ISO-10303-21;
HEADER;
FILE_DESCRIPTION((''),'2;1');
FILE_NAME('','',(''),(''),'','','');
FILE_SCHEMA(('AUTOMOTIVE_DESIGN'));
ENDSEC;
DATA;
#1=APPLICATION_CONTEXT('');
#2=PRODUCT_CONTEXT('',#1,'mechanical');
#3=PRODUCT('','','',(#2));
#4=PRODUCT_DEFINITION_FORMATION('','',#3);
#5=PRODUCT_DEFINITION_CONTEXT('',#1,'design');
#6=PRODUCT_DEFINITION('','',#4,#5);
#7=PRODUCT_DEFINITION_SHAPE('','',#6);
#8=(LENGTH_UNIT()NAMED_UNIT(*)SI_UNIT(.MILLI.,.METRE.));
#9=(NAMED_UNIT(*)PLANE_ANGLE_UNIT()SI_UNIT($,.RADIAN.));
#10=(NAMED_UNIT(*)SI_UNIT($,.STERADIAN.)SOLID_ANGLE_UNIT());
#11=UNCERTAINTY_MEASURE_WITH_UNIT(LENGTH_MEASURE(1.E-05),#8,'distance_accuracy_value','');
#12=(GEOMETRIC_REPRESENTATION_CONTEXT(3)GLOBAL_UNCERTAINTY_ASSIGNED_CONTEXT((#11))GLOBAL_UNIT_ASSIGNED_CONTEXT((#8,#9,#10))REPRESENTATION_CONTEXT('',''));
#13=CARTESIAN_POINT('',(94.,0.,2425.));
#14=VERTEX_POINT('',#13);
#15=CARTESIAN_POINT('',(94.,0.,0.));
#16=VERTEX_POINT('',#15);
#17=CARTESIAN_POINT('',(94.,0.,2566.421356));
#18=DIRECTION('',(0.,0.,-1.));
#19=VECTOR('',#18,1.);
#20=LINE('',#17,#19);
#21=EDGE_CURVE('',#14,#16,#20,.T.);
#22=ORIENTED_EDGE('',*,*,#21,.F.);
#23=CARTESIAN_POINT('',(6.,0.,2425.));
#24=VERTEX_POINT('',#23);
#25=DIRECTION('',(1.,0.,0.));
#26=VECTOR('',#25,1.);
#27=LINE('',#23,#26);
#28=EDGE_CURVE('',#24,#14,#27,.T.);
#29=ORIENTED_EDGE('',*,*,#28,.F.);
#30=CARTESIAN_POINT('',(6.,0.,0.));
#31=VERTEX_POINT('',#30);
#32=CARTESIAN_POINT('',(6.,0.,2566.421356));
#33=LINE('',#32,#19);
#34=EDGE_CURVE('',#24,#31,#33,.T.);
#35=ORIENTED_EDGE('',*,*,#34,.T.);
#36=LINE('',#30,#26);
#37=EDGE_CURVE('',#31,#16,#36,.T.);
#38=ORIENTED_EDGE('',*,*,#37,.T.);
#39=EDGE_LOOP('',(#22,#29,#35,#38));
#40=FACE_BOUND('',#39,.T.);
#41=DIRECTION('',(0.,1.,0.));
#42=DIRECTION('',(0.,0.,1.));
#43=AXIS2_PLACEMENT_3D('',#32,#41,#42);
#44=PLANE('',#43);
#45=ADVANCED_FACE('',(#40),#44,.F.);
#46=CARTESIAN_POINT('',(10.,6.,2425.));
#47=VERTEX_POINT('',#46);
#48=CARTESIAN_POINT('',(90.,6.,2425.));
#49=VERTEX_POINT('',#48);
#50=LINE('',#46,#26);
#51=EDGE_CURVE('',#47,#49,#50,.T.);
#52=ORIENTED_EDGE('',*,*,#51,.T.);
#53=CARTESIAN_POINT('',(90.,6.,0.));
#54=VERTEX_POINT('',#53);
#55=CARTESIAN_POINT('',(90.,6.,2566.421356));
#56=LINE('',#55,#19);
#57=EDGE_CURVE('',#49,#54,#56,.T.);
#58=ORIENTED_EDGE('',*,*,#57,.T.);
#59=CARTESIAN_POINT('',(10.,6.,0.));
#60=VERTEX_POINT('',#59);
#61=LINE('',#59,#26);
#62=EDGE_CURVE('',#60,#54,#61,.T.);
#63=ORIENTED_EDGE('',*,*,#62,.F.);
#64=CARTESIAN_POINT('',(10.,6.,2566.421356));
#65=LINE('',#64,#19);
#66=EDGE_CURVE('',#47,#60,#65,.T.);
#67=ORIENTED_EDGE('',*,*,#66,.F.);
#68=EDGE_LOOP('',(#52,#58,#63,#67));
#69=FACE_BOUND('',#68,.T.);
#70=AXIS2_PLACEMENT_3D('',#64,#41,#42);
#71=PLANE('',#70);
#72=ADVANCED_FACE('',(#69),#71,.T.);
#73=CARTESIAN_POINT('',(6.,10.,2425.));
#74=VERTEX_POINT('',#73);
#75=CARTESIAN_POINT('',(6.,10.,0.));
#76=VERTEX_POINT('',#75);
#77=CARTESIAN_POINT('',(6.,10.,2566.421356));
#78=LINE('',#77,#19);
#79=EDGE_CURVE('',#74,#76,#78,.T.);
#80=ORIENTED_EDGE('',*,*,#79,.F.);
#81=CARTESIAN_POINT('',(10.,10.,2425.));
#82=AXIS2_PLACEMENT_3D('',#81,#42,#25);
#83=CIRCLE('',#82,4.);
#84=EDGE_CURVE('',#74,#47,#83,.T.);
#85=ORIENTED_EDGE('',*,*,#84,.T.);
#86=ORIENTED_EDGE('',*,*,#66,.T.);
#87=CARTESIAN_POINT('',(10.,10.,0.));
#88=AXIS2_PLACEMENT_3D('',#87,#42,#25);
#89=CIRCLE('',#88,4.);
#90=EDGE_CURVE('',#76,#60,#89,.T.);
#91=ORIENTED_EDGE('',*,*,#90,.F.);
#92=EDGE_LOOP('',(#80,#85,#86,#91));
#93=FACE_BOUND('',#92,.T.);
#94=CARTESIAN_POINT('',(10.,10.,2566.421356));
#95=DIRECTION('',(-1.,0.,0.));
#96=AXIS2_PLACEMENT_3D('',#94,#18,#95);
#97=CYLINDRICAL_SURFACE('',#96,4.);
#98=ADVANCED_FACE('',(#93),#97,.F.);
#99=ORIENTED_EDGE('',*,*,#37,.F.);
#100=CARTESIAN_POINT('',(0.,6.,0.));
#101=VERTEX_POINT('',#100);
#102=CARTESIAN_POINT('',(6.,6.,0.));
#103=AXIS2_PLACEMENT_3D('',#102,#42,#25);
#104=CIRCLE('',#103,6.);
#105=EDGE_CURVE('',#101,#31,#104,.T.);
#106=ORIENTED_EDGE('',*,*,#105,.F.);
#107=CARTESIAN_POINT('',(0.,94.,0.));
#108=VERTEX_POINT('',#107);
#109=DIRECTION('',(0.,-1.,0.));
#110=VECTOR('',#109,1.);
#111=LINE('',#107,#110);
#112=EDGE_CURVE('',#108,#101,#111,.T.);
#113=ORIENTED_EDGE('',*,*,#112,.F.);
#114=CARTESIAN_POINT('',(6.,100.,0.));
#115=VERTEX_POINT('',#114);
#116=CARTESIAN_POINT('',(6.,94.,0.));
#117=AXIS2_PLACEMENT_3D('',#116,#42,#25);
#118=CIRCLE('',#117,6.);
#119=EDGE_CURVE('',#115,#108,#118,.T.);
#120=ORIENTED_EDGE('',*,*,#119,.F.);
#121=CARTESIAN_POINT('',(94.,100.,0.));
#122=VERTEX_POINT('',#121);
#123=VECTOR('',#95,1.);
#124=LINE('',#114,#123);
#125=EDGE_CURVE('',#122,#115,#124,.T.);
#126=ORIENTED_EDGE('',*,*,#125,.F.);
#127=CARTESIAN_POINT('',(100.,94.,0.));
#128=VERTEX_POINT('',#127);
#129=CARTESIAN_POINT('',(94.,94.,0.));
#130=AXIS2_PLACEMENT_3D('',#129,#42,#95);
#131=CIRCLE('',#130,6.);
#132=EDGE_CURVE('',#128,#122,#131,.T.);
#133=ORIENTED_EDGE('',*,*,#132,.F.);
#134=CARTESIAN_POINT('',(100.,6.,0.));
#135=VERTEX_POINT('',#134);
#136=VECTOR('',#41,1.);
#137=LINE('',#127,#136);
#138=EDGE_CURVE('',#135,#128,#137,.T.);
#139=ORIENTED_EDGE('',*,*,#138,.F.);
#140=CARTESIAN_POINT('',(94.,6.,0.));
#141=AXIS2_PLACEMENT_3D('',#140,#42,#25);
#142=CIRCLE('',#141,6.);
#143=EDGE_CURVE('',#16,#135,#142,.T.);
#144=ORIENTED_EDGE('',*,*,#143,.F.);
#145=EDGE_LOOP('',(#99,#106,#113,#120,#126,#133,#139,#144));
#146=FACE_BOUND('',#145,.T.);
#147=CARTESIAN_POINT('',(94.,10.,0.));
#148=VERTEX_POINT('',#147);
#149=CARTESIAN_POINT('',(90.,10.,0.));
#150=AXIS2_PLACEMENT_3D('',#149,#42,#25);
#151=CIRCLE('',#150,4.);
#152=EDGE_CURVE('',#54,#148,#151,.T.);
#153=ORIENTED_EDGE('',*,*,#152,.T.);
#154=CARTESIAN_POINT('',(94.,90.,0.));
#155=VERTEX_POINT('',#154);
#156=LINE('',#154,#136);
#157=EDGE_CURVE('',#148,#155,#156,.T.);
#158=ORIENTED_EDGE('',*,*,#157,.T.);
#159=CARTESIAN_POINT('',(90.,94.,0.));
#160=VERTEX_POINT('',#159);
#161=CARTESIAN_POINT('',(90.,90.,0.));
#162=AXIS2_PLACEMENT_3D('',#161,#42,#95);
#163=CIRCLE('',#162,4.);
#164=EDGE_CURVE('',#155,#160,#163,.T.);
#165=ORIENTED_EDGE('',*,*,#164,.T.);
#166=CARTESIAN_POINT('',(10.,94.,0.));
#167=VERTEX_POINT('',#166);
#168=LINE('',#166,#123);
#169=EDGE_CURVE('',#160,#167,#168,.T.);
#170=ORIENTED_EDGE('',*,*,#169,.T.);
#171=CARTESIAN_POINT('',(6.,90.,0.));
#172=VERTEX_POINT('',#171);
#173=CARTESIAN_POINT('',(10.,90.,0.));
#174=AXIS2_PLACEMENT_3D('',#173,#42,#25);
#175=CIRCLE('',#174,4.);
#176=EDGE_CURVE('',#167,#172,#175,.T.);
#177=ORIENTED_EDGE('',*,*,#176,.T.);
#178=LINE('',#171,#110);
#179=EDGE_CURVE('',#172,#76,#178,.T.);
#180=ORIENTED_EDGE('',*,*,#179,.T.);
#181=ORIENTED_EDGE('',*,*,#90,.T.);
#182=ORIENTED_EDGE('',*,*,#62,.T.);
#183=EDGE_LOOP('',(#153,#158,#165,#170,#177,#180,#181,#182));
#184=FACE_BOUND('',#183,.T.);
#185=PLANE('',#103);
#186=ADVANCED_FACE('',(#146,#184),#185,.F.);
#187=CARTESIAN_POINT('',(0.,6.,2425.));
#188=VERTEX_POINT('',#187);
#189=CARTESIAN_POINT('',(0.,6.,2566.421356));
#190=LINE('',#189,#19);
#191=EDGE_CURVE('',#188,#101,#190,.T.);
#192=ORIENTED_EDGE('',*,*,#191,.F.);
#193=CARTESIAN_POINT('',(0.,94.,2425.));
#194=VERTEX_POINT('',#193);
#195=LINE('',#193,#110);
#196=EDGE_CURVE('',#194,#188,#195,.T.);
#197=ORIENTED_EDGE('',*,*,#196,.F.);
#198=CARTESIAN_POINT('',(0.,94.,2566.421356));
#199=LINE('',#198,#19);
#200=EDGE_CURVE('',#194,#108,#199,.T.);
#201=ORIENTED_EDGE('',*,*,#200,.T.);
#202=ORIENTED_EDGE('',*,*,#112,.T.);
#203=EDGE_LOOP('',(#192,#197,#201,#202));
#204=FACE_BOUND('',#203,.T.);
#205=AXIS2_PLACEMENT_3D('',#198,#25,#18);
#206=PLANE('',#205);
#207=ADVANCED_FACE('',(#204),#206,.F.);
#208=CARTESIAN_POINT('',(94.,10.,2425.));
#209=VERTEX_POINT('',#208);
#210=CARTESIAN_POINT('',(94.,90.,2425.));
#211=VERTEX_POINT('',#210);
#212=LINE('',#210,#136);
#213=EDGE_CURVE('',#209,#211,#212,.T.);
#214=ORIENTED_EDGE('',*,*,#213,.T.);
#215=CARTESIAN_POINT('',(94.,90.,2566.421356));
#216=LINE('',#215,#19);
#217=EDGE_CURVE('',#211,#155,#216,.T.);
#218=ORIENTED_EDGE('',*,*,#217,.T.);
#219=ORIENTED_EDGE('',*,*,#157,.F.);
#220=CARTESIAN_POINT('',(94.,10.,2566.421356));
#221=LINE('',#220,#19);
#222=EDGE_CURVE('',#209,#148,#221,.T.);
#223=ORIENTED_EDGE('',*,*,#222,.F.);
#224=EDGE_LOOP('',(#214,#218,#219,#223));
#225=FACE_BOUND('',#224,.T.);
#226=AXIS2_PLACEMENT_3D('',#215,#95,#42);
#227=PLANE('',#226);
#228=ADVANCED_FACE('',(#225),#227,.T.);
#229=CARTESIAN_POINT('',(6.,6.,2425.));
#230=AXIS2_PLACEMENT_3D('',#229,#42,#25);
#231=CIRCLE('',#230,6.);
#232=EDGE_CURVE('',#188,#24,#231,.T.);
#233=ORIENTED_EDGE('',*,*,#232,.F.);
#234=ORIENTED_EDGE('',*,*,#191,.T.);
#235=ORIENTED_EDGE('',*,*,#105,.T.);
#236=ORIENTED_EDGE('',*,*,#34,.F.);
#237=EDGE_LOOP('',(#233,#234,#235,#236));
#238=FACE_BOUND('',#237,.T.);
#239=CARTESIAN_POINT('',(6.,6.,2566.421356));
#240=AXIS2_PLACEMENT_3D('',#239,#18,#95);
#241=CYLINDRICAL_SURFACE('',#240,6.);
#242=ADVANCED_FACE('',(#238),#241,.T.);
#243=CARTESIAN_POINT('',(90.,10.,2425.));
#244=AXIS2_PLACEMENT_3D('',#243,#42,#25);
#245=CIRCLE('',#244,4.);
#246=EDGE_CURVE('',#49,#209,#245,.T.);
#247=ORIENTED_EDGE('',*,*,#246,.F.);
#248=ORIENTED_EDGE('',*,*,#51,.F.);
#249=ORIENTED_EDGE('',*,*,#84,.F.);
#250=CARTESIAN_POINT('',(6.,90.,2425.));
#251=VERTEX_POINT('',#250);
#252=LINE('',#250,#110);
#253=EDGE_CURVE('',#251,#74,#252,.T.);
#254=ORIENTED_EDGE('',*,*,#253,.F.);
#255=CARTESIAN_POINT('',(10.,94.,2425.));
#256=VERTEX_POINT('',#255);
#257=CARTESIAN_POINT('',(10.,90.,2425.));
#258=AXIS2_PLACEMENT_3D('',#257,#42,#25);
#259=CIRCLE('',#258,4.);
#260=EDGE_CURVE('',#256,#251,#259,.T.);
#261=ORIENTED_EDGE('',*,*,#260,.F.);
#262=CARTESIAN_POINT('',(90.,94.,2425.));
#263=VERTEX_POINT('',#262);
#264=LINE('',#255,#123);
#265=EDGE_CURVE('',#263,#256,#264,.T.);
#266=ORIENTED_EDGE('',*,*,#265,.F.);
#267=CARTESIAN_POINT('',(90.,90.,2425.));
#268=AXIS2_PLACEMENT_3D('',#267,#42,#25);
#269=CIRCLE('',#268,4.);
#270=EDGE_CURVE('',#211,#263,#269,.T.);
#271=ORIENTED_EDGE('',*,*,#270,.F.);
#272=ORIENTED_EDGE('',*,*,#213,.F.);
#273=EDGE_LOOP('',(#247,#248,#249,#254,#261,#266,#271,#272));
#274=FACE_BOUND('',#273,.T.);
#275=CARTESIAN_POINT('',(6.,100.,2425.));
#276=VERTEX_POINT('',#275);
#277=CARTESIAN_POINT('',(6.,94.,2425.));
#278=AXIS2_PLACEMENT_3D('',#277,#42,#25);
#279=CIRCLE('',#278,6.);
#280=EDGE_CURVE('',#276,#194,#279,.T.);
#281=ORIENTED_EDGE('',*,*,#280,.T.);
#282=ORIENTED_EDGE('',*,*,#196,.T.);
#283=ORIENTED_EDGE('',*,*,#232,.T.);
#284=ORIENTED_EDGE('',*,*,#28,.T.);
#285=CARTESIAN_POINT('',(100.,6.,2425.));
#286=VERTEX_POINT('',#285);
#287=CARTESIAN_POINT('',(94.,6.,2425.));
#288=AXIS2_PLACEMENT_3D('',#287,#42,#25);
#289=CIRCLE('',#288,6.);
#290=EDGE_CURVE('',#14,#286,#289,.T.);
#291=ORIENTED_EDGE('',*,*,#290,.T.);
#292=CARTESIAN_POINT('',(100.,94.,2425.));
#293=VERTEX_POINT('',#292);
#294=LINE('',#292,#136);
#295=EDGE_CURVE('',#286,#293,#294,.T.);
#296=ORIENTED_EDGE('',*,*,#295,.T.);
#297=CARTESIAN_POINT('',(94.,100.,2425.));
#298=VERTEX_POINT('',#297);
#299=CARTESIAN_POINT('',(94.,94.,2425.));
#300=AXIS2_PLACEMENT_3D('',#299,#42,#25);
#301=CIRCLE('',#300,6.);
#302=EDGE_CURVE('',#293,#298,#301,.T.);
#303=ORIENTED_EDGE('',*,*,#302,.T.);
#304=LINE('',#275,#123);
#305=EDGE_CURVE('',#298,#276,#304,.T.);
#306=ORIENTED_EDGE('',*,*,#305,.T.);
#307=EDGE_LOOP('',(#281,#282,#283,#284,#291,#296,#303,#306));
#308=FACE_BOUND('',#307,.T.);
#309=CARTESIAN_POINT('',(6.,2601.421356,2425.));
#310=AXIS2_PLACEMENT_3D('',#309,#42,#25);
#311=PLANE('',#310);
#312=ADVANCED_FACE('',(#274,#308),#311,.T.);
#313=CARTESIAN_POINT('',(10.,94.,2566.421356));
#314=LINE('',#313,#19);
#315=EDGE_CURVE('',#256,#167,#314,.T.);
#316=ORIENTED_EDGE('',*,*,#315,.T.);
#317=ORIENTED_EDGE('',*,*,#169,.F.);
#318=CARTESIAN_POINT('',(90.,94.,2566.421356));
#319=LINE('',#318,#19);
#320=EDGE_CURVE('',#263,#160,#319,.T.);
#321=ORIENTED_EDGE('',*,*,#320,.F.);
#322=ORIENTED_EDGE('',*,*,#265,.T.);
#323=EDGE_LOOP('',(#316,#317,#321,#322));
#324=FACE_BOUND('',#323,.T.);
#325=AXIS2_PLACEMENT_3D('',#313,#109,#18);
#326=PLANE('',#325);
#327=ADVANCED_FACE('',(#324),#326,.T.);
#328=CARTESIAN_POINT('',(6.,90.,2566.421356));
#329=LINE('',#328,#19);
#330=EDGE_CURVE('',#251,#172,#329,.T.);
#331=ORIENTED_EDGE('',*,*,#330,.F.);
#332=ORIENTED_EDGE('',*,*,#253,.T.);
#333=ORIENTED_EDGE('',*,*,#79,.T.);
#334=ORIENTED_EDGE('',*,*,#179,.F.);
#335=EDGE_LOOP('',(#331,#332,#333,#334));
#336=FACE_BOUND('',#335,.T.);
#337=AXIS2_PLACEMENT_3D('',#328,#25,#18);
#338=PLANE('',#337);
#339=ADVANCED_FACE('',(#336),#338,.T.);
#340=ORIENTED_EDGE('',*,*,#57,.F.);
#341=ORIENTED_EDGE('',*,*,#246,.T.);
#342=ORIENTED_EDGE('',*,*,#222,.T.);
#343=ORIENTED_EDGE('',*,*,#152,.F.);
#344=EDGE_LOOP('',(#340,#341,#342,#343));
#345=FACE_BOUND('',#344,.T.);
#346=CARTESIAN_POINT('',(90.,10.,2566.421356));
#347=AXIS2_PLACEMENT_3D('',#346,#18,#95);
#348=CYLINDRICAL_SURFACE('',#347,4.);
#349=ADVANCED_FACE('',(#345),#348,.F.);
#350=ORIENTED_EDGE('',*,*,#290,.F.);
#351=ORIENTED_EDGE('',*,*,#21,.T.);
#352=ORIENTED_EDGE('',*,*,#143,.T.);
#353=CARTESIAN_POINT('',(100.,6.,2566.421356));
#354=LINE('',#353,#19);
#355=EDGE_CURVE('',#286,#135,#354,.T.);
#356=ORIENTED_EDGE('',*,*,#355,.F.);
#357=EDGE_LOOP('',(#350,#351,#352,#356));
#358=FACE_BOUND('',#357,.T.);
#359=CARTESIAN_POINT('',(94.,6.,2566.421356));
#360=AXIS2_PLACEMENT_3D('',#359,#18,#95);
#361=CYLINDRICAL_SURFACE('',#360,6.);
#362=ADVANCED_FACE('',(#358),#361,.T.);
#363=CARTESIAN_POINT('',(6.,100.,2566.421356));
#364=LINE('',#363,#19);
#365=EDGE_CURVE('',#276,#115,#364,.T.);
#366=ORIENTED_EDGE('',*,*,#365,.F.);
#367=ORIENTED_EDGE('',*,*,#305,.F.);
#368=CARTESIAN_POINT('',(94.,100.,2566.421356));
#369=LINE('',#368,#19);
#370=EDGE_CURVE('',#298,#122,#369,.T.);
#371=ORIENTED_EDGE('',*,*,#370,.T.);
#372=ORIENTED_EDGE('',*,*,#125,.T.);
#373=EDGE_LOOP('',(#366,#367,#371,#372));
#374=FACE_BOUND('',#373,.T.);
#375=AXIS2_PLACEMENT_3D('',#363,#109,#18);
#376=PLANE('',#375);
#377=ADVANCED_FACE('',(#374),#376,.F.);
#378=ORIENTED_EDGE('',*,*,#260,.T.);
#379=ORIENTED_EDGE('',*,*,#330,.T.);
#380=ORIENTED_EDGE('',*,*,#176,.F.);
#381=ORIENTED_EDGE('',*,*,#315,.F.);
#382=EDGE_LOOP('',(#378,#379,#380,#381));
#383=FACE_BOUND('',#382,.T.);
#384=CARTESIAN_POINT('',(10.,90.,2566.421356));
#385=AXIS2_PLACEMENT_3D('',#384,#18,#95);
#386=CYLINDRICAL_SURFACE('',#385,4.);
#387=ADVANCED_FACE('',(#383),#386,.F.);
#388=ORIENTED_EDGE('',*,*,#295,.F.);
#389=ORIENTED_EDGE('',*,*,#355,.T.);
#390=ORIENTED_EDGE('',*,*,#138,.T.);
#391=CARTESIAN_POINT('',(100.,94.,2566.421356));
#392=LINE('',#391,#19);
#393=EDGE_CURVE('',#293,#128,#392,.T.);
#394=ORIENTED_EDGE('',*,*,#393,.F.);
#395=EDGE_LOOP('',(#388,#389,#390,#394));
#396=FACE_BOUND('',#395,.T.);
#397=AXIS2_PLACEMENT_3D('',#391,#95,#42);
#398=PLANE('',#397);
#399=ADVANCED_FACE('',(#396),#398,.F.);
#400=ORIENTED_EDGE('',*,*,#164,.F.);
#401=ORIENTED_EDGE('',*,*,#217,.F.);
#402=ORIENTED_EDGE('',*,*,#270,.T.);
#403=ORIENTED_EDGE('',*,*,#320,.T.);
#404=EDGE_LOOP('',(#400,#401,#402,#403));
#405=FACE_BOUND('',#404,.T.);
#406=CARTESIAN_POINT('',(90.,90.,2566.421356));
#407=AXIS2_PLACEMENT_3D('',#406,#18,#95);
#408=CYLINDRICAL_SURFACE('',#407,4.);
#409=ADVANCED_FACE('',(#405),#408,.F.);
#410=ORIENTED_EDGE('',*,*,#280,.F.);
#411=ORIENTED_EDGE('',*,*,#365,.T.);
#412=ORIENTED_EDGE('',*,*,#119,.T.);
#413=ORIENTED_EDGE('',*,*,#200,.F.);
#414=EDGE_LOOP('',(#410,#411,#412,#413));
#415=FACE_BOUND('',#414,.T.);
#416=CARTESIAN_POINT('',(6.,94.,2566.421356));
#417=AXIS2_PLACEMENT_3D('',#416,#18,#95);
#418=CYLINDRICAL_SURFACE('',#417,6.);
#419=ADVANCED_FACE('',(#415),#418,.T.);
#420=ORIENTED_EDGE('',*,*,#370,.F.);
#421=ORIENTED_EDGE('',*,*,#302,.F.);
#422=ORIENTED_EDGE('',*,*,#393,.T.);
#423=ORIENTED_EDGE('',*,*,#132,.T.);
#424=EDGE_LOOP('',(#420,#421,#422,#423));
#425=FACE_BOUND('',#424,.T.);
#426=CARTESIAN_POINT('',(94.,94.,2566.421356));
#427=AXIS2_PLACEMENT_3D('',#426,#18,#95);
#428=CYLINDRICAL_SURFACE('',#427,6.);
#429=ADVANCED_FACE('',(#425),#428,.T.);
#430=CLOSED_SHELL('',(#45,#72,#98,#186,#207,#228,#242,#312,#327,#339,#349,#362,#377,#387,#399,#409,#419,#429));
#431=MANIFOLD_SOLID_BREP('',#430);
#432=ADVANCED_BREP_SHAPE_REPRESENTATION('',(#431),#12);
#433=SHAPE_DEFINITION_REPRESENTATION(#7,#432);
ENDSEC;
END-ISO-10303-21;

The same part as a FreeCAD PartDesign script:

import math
import FreeCAD as App
import Part
import Sketcher

doc = App.newDocument("Part")
params = doc.addObject("Spreadsheet::Sheet", "Params")
for row, (alias, value) in enumerate([
    ("sketch1_radius", "6 mm"),
    ("sketch1_radius2", "4 mm"),
    ("sketch1_width", "88 mm"),
    ("pad1_length", "2425 mm"),
], start=1):
    params.set(f"A{row}", alias)
    params.set(f"B{row}", "=" + value)
    params.setAlias(f"B{row}", alias)

body = doc.addObject("PartDesign::Body", "Body")

sketch1 = body.newObject("Sketcher::SketchObject", "Sketch")
sketch1.AttachmentSupport = (doc.getObject("XY_Plane"), [""])
sketch1.MapMode = "FlatFace"
sketch1.addGeometry(Part.LineSegment(App.Vector(94, 100, 0), App.Vector(6, 100, 0)), False)
sketch1.addGeometry(Part.ArcOfCircle(Part.Circle(App.Vector(6, 94, 0), App.Vector(0, 0, 1), 6), math.radians(90), math.radians(180)), False)
sketch1.addGeometry(Part.LineSegment(App.Vector(0, 94, 0), App.Vector(0, 6, 0)), False)
sketch1.addGeometry(Part.ArcOfCircle(Part.Circle(App.Vector(6, 6, 0), App.Vector(0, 0, 1), 6), math.radians(180), math.radians(270)), False)
sketch1.addGeometry(Part.LineSegment(App.Vector(6, 0, 0), App.Vector(94, 0, 0)), False)
sketch1.addGeometry(Part.ArcOfCircle(Part.Circle(App.Vector(94, 6, 0), App.Vector(0, 0, 1), 6), math.radians(-90), math.radians(0)), False)
sketch1.addGeometry(Part.LineSegment(App.Vector(100, 6, 0), App.Vector(100, 94, 0)), False)
sketch1.addGeometry(Part.ArcOfCircle(Part.Circle(App.Vector(94, 94, 0), App.Vector(0, 0, 1), 6), math.radians(0), math.radians(90)), False)
sketch1.addGeometry(Part.LineSegment(App.Vector(10, 94, 0), App.Vector(90, 94, 0)), False)
sketch1.addGeometry(Part.ArcOfCircle(Part.Circle(App.Vector(90, 90, 0), App.Vector(0, 0, 1), 4), math.radians(0), math.radians(90)), False)
sketch1.addGeometry(Part.LineSegment(App.Vector(94, 90, 0), App.Vector(94, 10, 0)), False)
sketch1.addGeometry(Part.ArcOfCircle(Part.Circle(App.Vector(90, 10, 0), App.Vector(0, 0, 1), 4), math.radians(-90), math.radians(0)), False)
sketch1.addGeometry(Part.LineSegment(App.Vector(90, 6, 0), App.Vector(10, 6, 0)), False)
sketch1.addGeometry(Part.ArcOfCircle(Part.Circle(App.Vector(10, 10, 0), App.Vector(0, 0, 1), 4), math.radians(180), math.radians(270)), False)
sketch1.addGeometry(Part.LineSegment(App.Vector(6, 10, 0), App.Vector(6, 90, 0)), False)
sketch1.addGeometry(Part.ArcOfCircle(Part.Circle(App.Vector(10, 90, 0), App.Vector(0, 0, 1), 4), math.radians(90), math.radians(180)), False)
sketch1.addConstraint(Sketcher.Constraint("Tangent", 0, 2, 1, 1))
sketch1.addConstraint(Sketcher.Constraint("Tangent", 1, 2, 2, 1))
sketch1.addConstraint(Sketcher.Constraint("Tangent", 2, 2, 3, 1))
sketch1.addConstraint(Sketcher.Constraint("Tangent", 3, 2, 4, 1))
sketch1.addConstraint(Sketcher.Constraint("Tangent", 4, 2, 5, 1))
sketch1.addConstraint(Sketcher.Constraint("Tangent", 5, 2, 6, 1))
sketch1.addConstraint(Sketcher.Constraint("Tangent", 6, 2, 7, 1))
sketch1.addConstraint(Sketcher.Constraint("Tangent", 7, 2, 0, 1))
sketch1.addConstraint(Sketcher.Constraint("Tangent", 8, 2, 9, 2))
sketch1.addConstraint(Sketcher.Constraint("Tangent", 9, 1, 10, 1))
sketch1.addConstraint(Sketcher.Constraint("Tangent", 10, 2, 11, 2))
sketch1.addConstraint(Sketcher.Constraint("Tangent", 11, 1, 12, 1))
sketch1.addConstraint(Sketcher.Constraint("Tangent", 12, 2, 13, 2))
sketch1.addConstraint(Sketcher.Constraint("Tangent", 13, 1, 14, 1))
sketch1.addConstraint(Sketcher.Constraint("Tangent", 14, 2, 15, 2))
sketch1.addConstraint(Sketcher.Constraint("Tangent", 15, 1, 8, 1))
sketch1.addConstraint(Sketcher.Constraint("Horizontal", 0))
sketch1.addConstraint(Sketcher.Constraint("Vertical", 2))
sketch1.addConstraint(Sketcher.Constraint("Horizontal", 4))
sketch1.addConstraint(Sketcher.Constraint("Vertical", 6))
sketch1.addConstraint(Sketcher.Constraint("Horizontal", 8))
sketch1.addConstraint(Sketcher.Constraint("Vertical", 10))
sketch1.addConstraint(Sketcher.Constraint("Horizontal", 12))
sketch1.addConstraint(Sketcher.Constraint("Vertical", 14))
sketch1.addConstraint(Sketcher.Constraint("Equal", 1, 3))
sketch1.addConstraint(Sketcher.Constraint("Equal", 3, 5))
sketch1.addConstraint(Sketcher.Constraint("Equal", 5, 7))
sketch1.addConstraint(Sketcher.Constraint("Equal", 9, 11))
sketch1.addConstraint(Sketcher.Constraint("Equal", 11, 13))
sketch1.addConstraint(Sketcher.Constraint("Equal", 13, 15))
sketch1.addConstraint(Sketcher.Constraint("PointOnObject", 1, 2, -2))
sketch1.addConstraint(Sketcher.Constraint("PointOnObject", 3, 2, -1))
sketch1.addConstraint(Sketcher.Constraint("Horizontal", 6, 2, 8, 2))
sketch1.addConstraint(Sketcher.Constraint("Horizontal", 5, 2, 11, 1))
sketch1.addConstraint(Sketcher.Constraint("Vertical", 7, 2, 9, 1))
sketch1.addConstraint(Sketcher.Constraint("Vertical", 3, 2, 13, 1))
sketch1.addConstraint(Sketcher.Constraint("Equal", 4, 2))
sketch1.addConstraint(Sketcher.Constraint("Radius", 1, 6.0))
sketch1.addConstraint(Sketcher.Constraint("Radius", 9, 4.0))
sketch1.addConstraint(Sketcher.Constraint("DistanceX", 0, 2, 0, 1, 88.0))
sketch1.setExpression("Constraints[37]", "Params.sketch1_radius")
sketch1.setExpression("Constraints[38]", "Params.sketch1_radius2")
sketch1.setExpression("Constraints[39]", "Params.sketch1_width")
pad1 = body.newObject("PartDesign::Pad", "Pad")
pad1.Profile = sketch1
pad1.setExpression("Length", "Params.pad1_length")

doc.recompute()
